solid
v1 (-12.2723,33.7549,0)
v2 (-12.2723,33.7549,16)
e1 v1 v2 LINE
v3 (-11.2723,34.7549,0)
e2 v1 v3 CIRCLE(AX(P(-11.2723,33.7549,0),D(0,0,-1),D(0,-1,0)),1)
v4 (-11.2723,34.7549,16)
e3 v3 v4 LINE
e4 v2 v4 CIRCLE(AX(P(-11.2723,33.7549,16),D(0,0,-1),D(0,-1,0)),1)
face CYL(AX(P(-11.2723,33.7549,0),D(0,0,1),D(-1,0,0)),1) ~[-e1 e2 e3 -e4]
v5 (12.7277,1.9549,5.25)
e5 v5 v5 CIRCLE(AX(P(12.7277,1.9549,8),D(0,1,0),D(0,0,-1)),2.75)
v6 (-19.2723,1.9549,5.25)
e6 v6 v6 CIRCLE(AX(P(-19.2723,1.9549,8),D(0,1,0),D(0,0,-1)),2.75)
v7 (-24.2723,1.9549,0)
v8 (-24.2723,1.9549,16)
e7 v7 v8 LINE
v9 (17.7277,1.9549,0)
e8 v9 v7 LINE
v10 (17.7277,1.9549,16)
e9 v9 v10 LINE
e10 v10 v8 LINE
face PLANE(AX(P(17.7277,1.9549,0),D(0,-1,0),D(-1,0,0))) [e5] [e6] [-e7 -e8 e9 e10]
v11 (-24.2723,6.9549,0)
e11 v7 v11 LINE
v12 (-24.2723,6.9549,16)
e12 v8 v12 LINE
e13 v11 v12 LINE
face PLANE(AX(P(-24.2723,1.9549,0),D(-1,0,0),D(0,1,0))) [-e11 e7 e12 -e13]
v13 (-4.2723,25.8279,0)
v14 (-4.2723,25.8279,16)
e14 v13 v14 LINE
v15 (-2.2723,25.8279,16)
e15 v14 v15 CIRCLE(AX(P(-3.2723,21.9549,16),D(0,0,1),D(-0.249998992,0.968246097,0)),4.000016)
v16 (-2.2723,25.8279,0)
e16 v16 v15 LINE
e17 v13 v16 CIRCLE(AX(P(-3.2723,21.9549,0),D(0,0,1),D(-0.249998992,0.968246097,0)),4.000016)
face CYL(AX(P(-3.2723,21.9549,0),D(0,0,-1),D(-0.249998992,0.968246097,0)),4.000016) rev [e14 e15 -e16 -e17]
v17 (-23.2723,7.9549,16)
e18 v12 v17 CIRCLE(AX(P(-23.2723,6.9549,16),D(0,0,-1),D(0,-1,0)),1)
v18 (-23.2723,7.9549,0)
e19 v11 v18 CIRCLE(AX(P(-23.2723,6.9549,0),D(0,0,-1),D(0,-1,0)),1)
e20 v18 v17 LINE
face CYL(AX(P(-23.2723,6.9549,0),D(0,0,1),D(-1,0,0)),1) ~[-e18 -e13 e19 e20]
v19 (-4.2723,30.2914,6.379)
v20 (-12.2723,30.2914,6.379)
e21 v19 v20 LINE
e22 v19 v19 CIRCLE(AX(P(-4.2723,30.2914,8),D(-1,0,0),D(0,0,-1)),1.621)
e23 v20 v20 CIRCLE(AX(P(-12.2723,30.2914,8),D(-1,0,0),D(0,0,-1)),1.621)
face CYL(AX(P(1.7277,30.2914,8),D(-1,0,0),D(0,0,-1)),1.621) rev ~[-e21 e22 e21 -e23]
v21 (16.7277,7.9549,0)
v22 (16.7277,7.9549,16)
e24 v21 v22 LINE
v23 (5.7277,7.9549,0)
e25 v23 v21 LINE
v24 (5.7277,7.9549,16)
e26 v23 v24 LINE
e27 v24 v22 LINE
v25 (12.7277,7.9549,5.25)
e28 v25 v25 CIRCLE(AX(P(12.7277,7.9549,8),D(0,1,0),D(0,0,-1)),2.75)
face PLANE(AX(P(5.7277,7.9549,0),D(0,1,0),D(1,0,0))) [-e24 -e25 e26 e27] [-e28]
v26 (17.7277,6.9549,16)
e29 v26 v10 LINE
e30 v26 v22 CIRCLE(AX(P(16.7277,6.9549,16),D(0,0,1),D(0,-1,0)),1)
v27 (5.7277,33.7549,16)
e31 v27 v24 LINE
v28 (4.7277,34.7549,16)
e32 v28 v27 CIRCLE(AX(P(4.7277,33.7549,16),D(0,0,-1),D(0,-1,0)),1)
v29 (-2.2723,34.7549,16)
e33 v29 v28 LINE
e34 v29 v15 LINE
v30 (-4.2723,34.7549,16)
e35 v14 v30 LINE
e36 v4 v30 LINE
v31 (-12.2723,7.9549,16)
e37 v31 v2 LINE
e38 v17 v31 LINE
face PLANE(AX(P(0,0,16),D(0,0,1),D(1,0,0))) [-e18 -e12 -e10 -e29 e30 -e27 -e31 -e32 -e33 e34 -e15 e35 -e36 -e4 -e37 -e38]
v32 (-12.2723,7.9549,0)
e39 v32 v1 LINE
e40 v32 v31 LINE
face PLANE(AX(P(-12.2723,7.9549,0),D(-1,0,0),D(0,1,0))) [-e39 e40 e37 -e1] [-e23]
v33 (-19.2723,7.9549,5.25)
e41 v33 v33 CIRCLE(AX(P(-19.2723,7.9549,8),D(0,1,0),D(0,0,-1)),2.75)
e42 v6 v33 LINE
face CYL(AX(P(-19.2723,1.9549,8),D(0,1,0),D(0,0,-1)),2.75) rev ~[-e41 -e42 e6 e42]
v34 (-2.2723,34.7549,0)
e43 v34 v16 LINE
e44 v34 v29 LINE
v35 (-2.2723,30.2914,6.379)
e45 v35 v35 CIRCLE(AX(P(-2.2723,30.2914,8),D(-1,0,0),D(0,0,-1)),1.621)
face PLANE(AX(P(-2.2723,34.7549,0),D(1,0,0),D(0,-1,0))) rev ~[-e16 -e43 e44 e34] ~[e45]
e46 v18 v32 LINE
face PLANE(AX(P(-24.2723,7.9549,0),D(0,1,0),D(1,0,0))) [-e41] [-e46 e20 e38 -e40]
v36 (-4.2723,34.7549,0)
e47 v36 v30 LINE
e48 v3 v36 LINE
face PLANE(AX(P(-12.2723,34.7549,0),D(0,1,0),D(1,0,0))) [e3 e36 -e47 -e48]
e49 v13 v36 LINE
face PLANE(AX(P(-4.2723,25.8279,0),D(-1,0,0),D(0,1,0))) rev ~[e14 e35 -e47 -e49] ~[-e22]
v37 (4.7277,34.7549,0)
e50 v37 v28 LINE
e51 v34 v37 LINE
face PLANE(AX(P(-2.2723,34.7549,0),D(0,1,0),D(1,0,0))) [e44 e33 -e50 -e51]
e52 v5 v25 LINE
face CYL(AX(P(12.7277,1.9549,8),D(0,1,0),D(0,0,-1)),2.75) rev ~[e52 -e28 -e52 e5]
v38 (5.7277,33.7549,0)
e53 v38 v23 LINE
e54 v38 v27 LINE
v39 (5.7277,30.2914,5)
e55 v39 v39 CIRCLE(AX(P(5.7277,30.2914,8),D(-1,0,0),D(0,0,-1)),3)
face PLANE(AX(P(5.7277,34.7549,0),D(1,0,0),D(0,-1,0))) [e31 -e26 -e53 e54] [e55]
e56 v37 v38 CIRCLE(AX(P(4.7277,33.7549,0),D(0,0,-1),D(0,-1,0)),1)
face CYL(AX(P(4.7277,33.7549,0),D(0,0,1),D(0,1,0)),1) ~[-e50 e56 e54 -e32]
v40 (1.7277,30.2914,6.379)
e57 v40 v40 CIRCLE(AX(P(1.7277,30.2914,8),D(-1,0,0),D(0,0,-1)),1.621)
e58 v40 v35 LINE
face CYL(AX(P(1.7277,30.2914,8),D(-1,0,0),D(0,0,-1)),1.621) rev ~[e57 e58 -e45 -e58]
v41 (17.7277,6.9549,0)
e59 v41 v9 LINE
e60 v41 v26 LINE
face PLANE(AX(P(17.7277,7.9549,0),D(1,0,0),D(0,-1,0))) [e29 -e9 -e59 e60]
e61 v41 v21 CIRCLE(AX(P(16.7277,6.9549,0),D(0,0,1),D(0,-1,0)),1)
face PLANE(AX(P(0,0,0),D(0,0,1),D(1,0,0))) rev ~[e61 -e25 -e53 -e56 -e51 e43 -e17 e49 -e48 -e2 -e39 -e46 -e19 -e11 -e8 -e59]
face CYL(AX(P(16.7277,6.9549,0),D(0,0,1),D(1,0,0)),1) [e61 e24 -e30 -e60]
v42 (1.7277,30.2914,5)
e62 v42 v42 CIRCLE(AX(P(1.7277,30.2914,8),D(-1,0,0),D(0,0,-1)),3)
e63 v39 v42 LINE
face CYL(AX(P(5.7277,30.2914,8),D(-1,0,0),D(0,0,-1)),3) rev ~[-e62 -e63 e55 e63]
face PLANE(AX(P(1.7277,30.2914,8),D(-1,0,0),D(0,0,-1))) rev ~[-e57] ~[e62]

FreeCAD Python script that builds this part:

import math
import FreeCAD as App
import Part
import Sketcher


def edges_at(feature, points):
    """Names of the edges that pass closest to the given points."""
    edges = feature.Shape.Edges
    near = lambda p: min(range(len(edges)), key=lambda i: edges[i].distToShape(Part.Vertex(*p))[0])
    return sorted({f"Edge{near(p) + 1}" for p in points})

doc = App.newDocument("Part")
body = doc.addObject("PartDesign::Body", "Body")

sketch1 = doc.addObject("Sketcher::SketchObject", "Sketch")
body.addObject(sketch1)
sketch1.AttachmentSupport = (doc.XY_Plane, [""])
sketch1.MapMode = "FlatFace"
sketch1.addGeometry(Part.LineSegment(App.Vector(-24.3, 2, 0), App.Vector(17.7, 2, 0)), False)
sketch1.addGeometry(Part.LineSegment(App.Vector(17.7, 2, 0), App.Vector(17.7, 8, 0)), False)
sketch1.addGeometry(Part.LineSegment(App.Vector(17.7, 8, 0), App.Vector(5.7, 8, 0)), False)
sketch1.addGeometry(Part.LineSegment(App.Vector(5.7, 8, 0), App.Vector(5.7, 34.8, 0)), False)
sketch1.addGeometry(Part.LineSegment(App.Vector(5.7, 34.8, 0), App.Vector(-2.3, 34.8, 0)), False)
sketch1.addGeometry(Part.LineSegment(App.Vector(-2.3, 34.8, 0), App.Vector(-2.3, 25.8, 0)), False)
sketch1.addGeometry(Part.ArcOfCircle(Part.Circle(App.Vector(-3.3, 22, 0), App.Vector(0, 0, 1), 4), math.radians(104), math.radians(436)), False)
sketch1.addGeometry(Part.LineSegment(App.Vector(-4.3, 25.8, 0), App.Vector(-4.3, 34.8, 0)), False)
sketch1.addGeometry(Part.LineSegment(App.Vector(-4.3, 34.8, 0), App.Vector(-12.3, 34.8, 0)), False)
sketch1.addGeometry(Part.LineSegment(App.Vector(-12.3, 34.8, 0), App.Vector(-12.3, 8, 0)), False)
sketch1.addGeometry(Part.LineSegment(App.Vector(-12.3, 8, 0), App.Vector(-24.3, 8, 0)), False)
sketch1.addGeometry(Part.LineSegment(App.Vector(-24.3, 8, 0), App.Vector(-24.3, 2, 0)), False)
sketch1.addConstraint(Sketcher.Constraint("Coincident", 0, 2, 1, 1))
sketch1.addConstraint(Sketcher.Constraint("Coincident", 1, 2, 2, 1))
sketch1.addConstraint(Sketcher.Constraint("Coincident", 2, 2, 3, 1))
sketch1.addConstraint(Sketcher.Constraint("Coincident", 3, 2, 4, 1))
sketch1.addConstraint(Sketcher.Constraint("Coincident", 4, 2, 5, 1))
sketch1.addConstraint(Sketcher.Constraint("Coincident", 5, 2, 6, 2))
sketch1.addConstraint(Sketcher.Constraint("Coincident", 6, 1, 7, 1))
sketch1.addConstraint(Sketcher.Constraint("Coincident", 7, 2, 8, 1))
sketch1.addConstraint(Sketcher.Constraint("Coincident", 8, 2, 9, 1))
sketch1.addConstraint(Sketcher.Constraint("Coincident", 9, 2, 10, 1))
sketch1.addConstraint(Sketcher.Constraint("Coincident", 10, 2, 11, 1))
sketch1.addConstraint(Sketcher.Constraint("Coincident", 11, 2, 0, 1))
sketch1.addConstraint(Sketcher.Constraint("Horizontal", 0))
sketch1.addConstraint(Sketcher.Constraint("Vertical", 1))
sketch1.addConstraint(Sketcher.Constraint("Horizontal", 2))
sketch1.addConstraint(Sketcher.Constraint("Vertical", 3))
sketch1.addConstraint(Sketcher.Constraint("Horizontal", 4))
sketch1.addConstraint(Sketcher.Constraint("Vertical", 5))
sketch1.addConstraint(Sketcher.Constraint("Vertical", 7))
sketch1.addConstraint(Sketcher.Constraint("Horizontal", 8))
sketch1.addConstraint(Sketcher.Constraint("Vertical", 9))
sketch1.addConstraint(Sketcher.Constraint("Horizontal", 10))
sketch1.addConstraint(Sketcher.Constraint("Vertical", 11))
sketch1.addConstraint(Sketcher.Constraint("Horizontal", 5, 2, 6, 1))
sketch1.addConstraint(Sketcher.Constraint("Horizontal", 4, 2, 7, 2))
sketch1.addConstraint(Sketcher.Constraint("Horizontal", 2, 2, 9, 2))
sketch1.addConstraint(Sketcher.Constraint("Equal", 4, 8))
sketch1.addConstraint(Sketcher.Constraint("Equal", 2, 10))
sketch1.addConstraint(Sketcher.Constraint("Radius", 6, 4.0))
sketch1.addConstraint(Sketcher.Constraint("DistanceX", 0, 1, 0, 2, 42.0))
sketch1.addConstraint(Sketcher.Constraint("DistanceX", 2, 2, 2, 1, 12.0))
sketch1.addConstraint(Sketcher.Constraint("DistanceX", 4, 2, 4, 1, 8.0))
sketch1.addConstraint(Sketcher.Constraint("DistanceY", 1, 1, 1, 2, 6.0))
sketch1.addConstraint(Sketcher.Constraint("DistanceY", 0, 2, 6, 3, 20.0))
sketch1.addConstraint(Sketcher.Constraint("DistanceY", 0, 2, 3, 2, 32.8))
sketch1.addConstraint(Sketcher.Constraint("DistanceY", -1, 1, 6, 3, 21.955))
sketch1.addConstraint(Sketcher.Constraint("DistanceX", 6, 3, -1, 1, 3.2723))
pad1 = doc.addObject("PartDesign::Pad", "Pad")
body.addObject(pad1)
pad1.Profile = sketch1
pad1.Length = 16

sketch2 = doc.addObject("Sketcher::SketchObject", "Sketch001")
body.addObject(sketch2)
sketch2.AttachmentSupport = (doc.YZ_Plane, [""])
sketch2.MapMode = "FlatFace"
sketch2.AttachmentOffset = App.Placement(App.Vector(0, 0, 5.7277), App.Rotation())
sketch2.addGeometry(Part.Circle(App.Vector(30.3, 8, 0), App.Vector(0, 0, 1), 1.6), False)
sketch2.addConstraint(Sketcher.Constraint("Diameter", 0, 3.242))
sketch2.addConstraint(Sketcher.Constraint("DistanceY", -1, 1, 0, 3, 8.0))
sketch2.addConstraint(Sketcher.Constraint("DistanceX", -1, 1, 0, 3, 30.2914))
doc.recompute()
hole = doc.addObject("PartDesign::Hole", "Hole")
body.addObject(hole)
hole.Profile = sketch2
hole.ThreadType = "None"
hole.Diameter = 3.242
hole.DepthType = "ThroughAll"
hole.HoleCutType = "Counterbore"
hole.HoleCutDiameter = 6
hole.HoleCutDepth = 4

sketch3 = doc.addObject("Sketcher::SketchObject", "Sketch002")
body.addObject(sketch3)
sketch3.AttachmentSupport = (doc.XZ_Plane, [""])
sketch3.MapMode = "FlatFace"
sketch3.AttachmentOffset = App.Placement(App.Vector(0, 0, -1.9549), App.Rotation())
sketch3.addGeometry(Part.Circle(App.Vector(-19.3, 8, 0), App.Vector(0, 0, 1), 2.8), False)
sketch3.addGeometry(Part.Circle(App.Vector(12.7, 8, 0), App.Vector(0, 0, 1), 2.8), False)
sketch3.addConstraint(Sketcher.Constraint("Equal", 0, 1))
sketch3.addConstraint(Sketcher.Constraint("Horizontal", 0, 3, 1, 3))
sketch3.addConstraint(Sketcher.Constraint("Diameter", 0, 5.5))
sketch3.addConstraint(Sketcher.Constraint("DistanceY", -1, 1, 0, 3, 8.0))
sketch3.addConstraint(Sketcher.Constraint("DistanceX", 0, 3, 1, 3, 32.0))
sketch3.addConstraint(Sketcher.Constraint("DistanceX", 0, 3, -1, 1, 19.2723))
doc.recompute()
hole2 = doc.addObject("PartDesign::Hole", "Hole001")
body.addObject(hole2)
hole2.Profile = sketch3
hole2.ThreadType = "None"
hole2.Diameter = 5.5
hole2.DepthType = "ThroughAll"
doc.recompute()

fillet = doc.addObject("PartDesign::Fillet", "Fillet")
body.addObject(fillet)
fillet.Base = (hole2, edges_at(hole2, [
    (5.728, 34.755, 8),
    (-12.272, 34.755, 8),
    (-24.272, 7.955, 8),
    (17.728, 7.955, 8),
]))
fillet.Radius = 1

doc.recompute()
